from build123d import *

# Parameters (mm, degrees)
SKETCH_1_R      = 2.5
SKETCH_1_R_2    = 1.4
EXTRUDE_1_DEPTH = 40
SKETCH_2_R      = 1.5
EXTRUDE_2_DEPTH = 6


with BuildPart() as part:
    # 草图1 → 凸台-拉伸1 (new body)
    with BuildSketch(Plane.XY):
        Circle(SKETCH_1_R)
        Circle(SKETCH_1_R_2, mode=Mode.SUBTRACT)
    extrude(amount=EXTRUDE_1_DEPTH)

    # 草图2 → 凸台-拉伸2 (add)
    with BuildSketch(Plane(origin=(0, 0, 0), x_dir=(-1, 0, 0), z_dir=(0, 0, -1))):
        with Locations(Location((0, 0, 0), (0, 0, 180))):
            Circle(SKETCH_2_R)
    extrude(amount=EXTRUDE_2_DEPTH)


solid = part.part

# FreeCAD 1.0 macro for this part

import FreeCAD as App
import Part
import Sketcher
Q = App.Units.Quantity

doc = App.newDocument("Part")
params = doc.addObject("Spreadsheet::Sheet", "Params")
for row, (alias, value) in enumerate([
    ("sketch1_diameter", "5 mm"),
    ("sketch1_diameter2", "2.8 mm"),
    ("pad1_length", "40 mm"),
    ("sketch2_diameter", "3 mm"),
    ("pad2_length", "6 mm"),
], start=1):
    params.set(f"A{row}", alias)
    params.set(f"B{row}", "=" + value)
    params.setAlias(f"B{row}", alias)

body = doc.addObject("PartDesign::Body", "Body")

sketch1 = body.newObject("Sketcher::SketchObject", "Sketch")
sketch1.AttachmentSupport = (doc.getObject("XY_Plane"), [""])
sketch1.MapMode = "FlatFace"
sketch1.addGeometry(Part.Circle(App.Vector(0, 0, 0), App.Vector(0, 0, 1), 2.5), False)
sketch1.addGeometry(Part.Circle(App.Vector(0, 0, 0), App.Vector(0, 0, 1), 1.4), False)
sketch1.addConstraint(Sketcher.Constraint("Coincident", 0, 3, -1, 1))
sketch1.addConstraint(Sketcher.Constraint("Coincident", 1, 3, -1, 1))
sketch1.addConstraint(Sketcher.Constraint("Diameter", 0, Q("5 mm")))
sketch1.addConstraint(Sketcher.Constraint("Diameter", 1, Q("2.8 mm")))
sketch1.setExpression("Constraints[2]", "Params.sketch1_diameter")
sketch1.setExpression("Constraints[3]", "Params.sketch1_diameter2")
pad1 = body.newObject("PartDesign::Pad", "Pad")
pad1.Profile = sketch1
pad1.setExpression("Length", "Params.pad1_length")

sketch2 = body.newObject("Sketcher::SketchObject", "Sketch001")
sketch2.AttachmentSupport = (doc.getObject("XY_Plane"), [""])
sketch2.MapMode = "FlatFace"
sketch2.addGeometry(Part.Circle(App.Vector(0, 0, 0), App.Vector(0, 0, 1), 1.5), False)
sketch2.addConstraint(Sketcher.Constraint("Coincident", 0, 3, -1, 1))
sketch2.addConstraint(Sketcher.Constraint("Diameter", 0, Q("3 mm")))
sketch2.setExpression("Constraints[1]", "Params.sketch2_diameter")
pad2 = body.newObject("PartDesign::Pad", "Pad001")
pad2.Profile = sketch2
pad2.setExpression("Length", "Params.pad2_length")
pad2.Reversed = True

doc.recompute()
